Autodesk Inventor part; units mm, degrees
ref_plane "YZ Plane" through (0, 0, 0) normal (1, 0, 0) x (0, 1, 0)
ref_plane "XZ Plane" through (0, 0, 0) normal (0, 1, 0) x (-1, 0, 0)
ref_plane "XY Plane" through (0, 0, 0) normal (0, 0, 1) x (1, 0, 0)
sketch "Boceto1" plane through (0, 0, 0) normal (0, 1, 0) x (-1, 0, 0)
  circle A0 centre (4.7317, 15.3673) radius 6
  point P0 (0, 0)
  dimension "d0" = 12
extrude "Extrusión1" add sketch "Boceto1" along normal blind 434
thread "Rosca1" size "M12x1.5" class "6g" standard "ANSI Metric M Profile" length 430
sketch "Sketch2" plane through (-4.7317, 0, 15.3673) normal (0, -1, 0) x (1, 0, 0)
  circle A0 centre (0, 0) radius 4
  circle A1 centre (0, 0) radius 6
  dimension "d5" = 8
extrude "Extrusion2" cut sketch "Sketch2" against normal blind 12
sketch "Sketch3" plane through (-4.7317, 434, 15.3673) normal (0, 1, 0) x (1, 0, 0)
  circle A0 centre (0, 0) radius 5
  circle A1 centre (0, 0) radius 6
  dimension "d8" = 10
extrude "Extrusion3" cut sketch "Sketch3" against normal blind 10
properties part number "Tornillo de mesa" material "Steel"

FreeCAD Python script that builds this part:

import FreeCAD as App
import Part
import Sketcher

doc = App.newDocument("Part")
body = doc.addObject("PartDesign::Body", "Body")

sketch1 = doc.addObject("Sketcher::SketchObject", "Sketch")
body.addObject(sketch1)
sketch1.AttachmentSupport = (doc.XZ_Plane, [""])
sketch1.MapMode = "FlatFace"
sketch1.addGeometry(Part.Circle(App.Vector(-4.7317, 15.3673, 0), App.Vector(0, 0, 1), 6), False)
sketch1.addConstraint(Sketcher.Constraint("Diameter", 0, 12.0))
sketch1.addConstraint(Sketcher.Constraint("DistanceX", 0, 3, -1, 1, 4.7317))
sketch1.addConstraint(Sketcher.Constraint("DistanceY", -1, 1, 0, 3, 15.3673))
pad1 = doc.addObject("PartDesign::Pad", "Pad")
body.addObject(pad1)
pad1.Profile = sketch1
pad1.Length = 434
pad1.Reversed = True

sketch2 = doc.addObject("Sketcher::SketchObject", "Sketch001")
body.addObject(sketch2)
sketch2.AttachmentSupport = (doc.XZ_Plane, [""])
sketch2.MapMode = "FlatFace"
sketch2.addGeometry(Part.Circle(App.Vector(-4.7317, 15.3673, 0), App.Vector(0, 0, 1), 6), False)
sketch2.addGeometry(Part.Circle(App.Vector(-4.7317, 15.3673, 0), App.Vector(0, 0, 1), 4), False)
sketch2.addConstraint(Sketcher.Constraint("Coincident", 1, 3, 0, 3))
sketch2.addConstraint(Sketcher.Constraint("Diameter", 1, 8.0))
sketch2.addConstraint(Sketcher.Constraint("Diameter", 0, 12.0))
sketch2.addConstraint(Sketcher.Constraint("DistanceX", 0, 3, -1, 1, 4.7317))
sketch2.addConstraint(Sketcher.Constraint("DistanceY", -1, 1, 0, 3, 15.3673))
pocket1 = doc.addObject("PartDesign::Pocket", "Pocket")
body.addObject(pocket1)
pocket1.Profile = sketch2
pocket1.Length = 12

sketch3 = doc.addObject("Sketcher::SketchObject", "Sketch002")
body.addObject(sketch3)
sketch3.AttachmentSupport = (doc.XZ_Plane, [""])
sketch3.MapMode = "FlatFace"
sketch3.AttachmentOffset = App.Placement(App.Vector(0, 0, -434), App.Rotation())
sketch3.addGeometry(Part.Circle(App.Vector(-4.7317, 15.3673, 0), App.Vector(0, 0, 1), 6), False)
sketch3.addGeometry(Part.Circle(App.Vector(-4.7317, 15.3673, 0), App.Vector(0, 0, 1), 5), False)
sketch3.addConstraint(Sketcher.Constraint("Coincident", 1, 3, 0, 3))
sketch3.addConstraint(Sketcher.Constraint("Diameter", 1, 10.0))
sketch3.addConstraint(Sketcher.Constraint("Diameter", 0, 12.0))
sketch3.addConstraint(Sketcher.Constraint("DistanceX", 0, 3, -1, 1, 4.7317))
sketch3.addConstraint(Sketcher.Constraint("DistanceY", -1, 1, 0, 3, 15.3673))
pocket2 = doc.addObject("PartDesign::Pocket", "Pocket001")
body.addObject(pocket2)
pocket2.Profile = sketch3
pocket2.Length = 10
pocket2.Reversed = True

doc.recompute()
